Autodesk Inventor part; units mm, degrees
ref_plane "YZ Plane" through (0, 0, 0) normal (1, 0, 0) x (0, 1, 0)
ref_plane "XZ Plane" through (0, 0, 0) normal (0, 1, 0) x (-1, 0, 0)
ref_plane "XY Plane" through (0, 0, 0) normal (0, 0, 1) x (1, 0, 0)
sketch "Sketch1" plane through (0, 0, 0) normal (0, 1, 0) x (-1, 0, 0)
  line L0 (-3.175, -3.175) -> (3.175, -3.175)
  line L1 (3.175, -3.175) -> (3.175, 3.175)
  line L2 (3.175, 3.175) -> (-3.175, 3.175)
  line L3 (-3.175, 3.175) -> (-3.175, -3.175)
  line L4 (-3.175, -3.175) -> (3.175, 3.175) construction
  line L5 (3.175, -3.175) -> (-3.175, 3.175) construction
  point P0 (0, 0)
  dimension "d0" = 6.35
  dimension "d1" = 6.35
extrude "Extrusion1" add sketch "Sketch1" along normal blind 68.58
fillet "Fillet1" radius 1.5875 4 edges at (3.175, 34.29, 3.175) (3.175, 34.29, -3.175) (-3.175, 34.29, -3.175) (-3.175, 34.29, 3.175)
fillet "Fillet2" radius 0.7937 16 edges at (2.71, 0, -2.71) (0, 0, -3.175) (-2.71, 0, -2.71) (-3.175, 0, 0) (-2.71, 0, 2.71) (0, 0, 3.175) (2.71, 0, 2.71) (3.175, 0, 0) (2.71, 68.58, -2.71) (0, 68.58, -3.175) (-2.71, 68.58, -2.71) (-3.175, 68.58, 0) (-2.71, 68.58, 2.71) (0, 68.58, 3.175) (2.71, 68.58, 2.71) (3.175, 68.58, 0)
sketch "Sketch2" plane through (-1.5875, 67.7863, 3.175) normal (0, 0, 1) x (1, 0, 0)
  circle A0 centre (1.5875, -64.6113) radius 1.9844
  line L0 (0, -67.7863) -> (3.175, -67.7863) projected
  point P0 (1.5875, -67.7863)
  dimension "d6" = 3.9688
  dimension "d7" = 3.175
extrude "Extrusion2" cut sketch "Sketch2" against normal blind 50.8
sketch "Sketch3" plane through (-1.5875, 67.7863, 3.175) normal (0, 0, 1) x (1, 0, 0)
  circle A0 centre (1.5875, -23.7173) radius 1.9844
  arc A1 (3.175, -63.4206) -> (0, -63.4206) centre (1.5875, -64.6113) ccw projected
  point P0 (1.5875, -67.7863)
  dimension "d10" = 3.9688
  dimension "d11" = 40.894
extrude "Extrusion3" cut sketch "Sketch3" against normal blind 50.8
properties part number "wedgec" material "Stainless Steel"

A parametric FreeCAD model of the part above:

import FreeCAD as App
import Part
import Sketcher

V = App.Vector
Q = App.Units.Quantity


def edges_at(feature, points):
    """Names of the edges that pass closest to the given points."""
    edges = feature.Shape.Edges
    near = lambda p: min(range(len(edges)), key=lambda i: edges[i].distToShape(Part.Vertex(*p))[0])
    return sorted({f"Edge{near(p) + 1}" for p in points})


def add_polygon(sketch, points):
    """Adds a closed chain of lines whose ends are joined by coincident constraints."""
    first, n = sketch.GeometryCount, len(points)
    for a, b in zip(points, points[1:] + points[:1]):
        sketch.addGeometry(Part.LineSegment(App.Vector(*a, 0), App.Vector(*b, 0)), False)
    for i in range(n):
        sketch.addConstraint(Sketcher.Constraint("Coincident", first + i, 2, first + (i + 1) % n, 1))

doc = App.newDocument("Part")
body = doc.addObject("PartDesign::Body", "Body")

# Sketch on XZ plane
sketch1 = body.newObject("Sketcher::SketchObject", "Sketch")
sketch1.AttachmentSupport = (doc.getObject("XZ_Plane"), [""])
sketch1.MapMode = "FlatFace"
add_polygon(sketch1, [(3, 3), (3, -3), (-3, -3), (-3, 3)])  # lines 0-3
sketch1.addConstraint([
    Sketcher.Constraint("Vertical", 0),
    Sketcher.Constraint("Horizontal", 1),
    Sketcher.Constraint("Vertical", 2),
    Sketcher.Constraint("Horizontal", 3),
    Sketcher.Constraint("Symmetric", 0, 2, 2, 2, -1, 1),
    Sketcher.Constraint("Equal", 3, 0),
    Sketcher.Constraint("DistanceX", 1, 2, 1, 1, Q("0.25 in")),
])
pad1 = body.newObject("PartDesign::Pad", "Pad")
pad1.Profile = sketch1
pad1.Length = Q("2.7 in")
pad1.Reversed = True
doc.recompute()

fillet = body.newObject("PartDesign::Fillet", "Fillet")
fillet.Base = (pad1, edges_at(pad1, [
    (3.175, 34.29, 3.175),
    (3.175, 34.29, -3.175),
    (-3.175, 34.29, -3.175),
    (-3.175, 34.29, 3.175),
]))
fillet.Radius = Q("0.0625 in")
doc.recompute()

fillet2 = body.newObject("PartDesign::Fillet", "Fillet001")
fillet2.Base = (fillet, edges_at(fillet, [
    (2.71, 0, -2.71),
    (0, 0, -3.175),
    (-2.71, 0, -2.71),
    (-3.175, 0, 0),
    (-2.71, 0, 2.71),
    (0, 0, 3.175),
    (2.71, 0, 2.71),
    (3.175, 0, 0),
    (2.71, 68.58, -2.71),
    (0, 68.58, -3.175),
    (-2.71, 68.58, -2.71),
    (-3.175, 68.58, 0),
    (-2.71, 68.58, 2.71),
    (0, 68.58, 3.175),
    (2.71, 68.58, 2.71),
    (3.175, 68.58, 0),
]))
fillet2.Radius = Q("0.031248 in")

# Sketch on XY plane
sketch2 = body.newObject("Sketcher::SketchObject", "Sketch001")
sketch2.AttachmentSupport = (doc.getObject("XY_Plane"), [""])
sketch2.MapMode = "FlatFace"
sketch2.AttachmentOffset = App.Placement(V(0, 0, 0.125 * 25.4), App.Rotation())
sketch2.addGeometry(Part.Circle(V(0, 3.2, 0), V(0, 0, 1), 2), False)
sketch2.addConstraint([
    Sketcher.Constraint("PointOnObject", 0, 3, -2),
    Sketcher.Constraint("Diameter", 0, Q("0.156252 in")),
    Sketcher.Constraint("DistanceY", -1, 1, 0, 3, Q("0.125 in")),
])
pocket1 = body.newObject("PartDesign::Pocket", "Pocket")
pocket1.Profile = sketch2
pocket1.Length = Q("2 in")

# Sketch on XY plane
sketch3 = body.newObject("Sketcher::SketchObject", "Sketch002")
sketch3.AttachmentSupport = (doc.getObject("XY_Plane"), [""])
sketch3.MapMode = "FlatFace"
sketch3.AttachmentOffset = App.Placement(V(0, 0, 0.125 * 25.4), App.Rotation())
sketch3.addGeometry(Part.Circle(V(0, 44.1, 0), V(0, 0, 1), 2), False)
sketch3.addConstraint([
    Sketcher.Constraint("PointOnObject", 0, 3, -2),
    Sketcher.Constraint("Diameter", 0, Q("0.156252 in")),
    Sketcher.Constraint("DistanceY", -1, 1, 0, 3, Q("1.735 in")),
])
pocket2 = body.newObject("PartDesign::Pocket", "Pocket001")
pocket2.Profile = sketch3
pocket2.Length = Q("2 in")

doc.recompute()
